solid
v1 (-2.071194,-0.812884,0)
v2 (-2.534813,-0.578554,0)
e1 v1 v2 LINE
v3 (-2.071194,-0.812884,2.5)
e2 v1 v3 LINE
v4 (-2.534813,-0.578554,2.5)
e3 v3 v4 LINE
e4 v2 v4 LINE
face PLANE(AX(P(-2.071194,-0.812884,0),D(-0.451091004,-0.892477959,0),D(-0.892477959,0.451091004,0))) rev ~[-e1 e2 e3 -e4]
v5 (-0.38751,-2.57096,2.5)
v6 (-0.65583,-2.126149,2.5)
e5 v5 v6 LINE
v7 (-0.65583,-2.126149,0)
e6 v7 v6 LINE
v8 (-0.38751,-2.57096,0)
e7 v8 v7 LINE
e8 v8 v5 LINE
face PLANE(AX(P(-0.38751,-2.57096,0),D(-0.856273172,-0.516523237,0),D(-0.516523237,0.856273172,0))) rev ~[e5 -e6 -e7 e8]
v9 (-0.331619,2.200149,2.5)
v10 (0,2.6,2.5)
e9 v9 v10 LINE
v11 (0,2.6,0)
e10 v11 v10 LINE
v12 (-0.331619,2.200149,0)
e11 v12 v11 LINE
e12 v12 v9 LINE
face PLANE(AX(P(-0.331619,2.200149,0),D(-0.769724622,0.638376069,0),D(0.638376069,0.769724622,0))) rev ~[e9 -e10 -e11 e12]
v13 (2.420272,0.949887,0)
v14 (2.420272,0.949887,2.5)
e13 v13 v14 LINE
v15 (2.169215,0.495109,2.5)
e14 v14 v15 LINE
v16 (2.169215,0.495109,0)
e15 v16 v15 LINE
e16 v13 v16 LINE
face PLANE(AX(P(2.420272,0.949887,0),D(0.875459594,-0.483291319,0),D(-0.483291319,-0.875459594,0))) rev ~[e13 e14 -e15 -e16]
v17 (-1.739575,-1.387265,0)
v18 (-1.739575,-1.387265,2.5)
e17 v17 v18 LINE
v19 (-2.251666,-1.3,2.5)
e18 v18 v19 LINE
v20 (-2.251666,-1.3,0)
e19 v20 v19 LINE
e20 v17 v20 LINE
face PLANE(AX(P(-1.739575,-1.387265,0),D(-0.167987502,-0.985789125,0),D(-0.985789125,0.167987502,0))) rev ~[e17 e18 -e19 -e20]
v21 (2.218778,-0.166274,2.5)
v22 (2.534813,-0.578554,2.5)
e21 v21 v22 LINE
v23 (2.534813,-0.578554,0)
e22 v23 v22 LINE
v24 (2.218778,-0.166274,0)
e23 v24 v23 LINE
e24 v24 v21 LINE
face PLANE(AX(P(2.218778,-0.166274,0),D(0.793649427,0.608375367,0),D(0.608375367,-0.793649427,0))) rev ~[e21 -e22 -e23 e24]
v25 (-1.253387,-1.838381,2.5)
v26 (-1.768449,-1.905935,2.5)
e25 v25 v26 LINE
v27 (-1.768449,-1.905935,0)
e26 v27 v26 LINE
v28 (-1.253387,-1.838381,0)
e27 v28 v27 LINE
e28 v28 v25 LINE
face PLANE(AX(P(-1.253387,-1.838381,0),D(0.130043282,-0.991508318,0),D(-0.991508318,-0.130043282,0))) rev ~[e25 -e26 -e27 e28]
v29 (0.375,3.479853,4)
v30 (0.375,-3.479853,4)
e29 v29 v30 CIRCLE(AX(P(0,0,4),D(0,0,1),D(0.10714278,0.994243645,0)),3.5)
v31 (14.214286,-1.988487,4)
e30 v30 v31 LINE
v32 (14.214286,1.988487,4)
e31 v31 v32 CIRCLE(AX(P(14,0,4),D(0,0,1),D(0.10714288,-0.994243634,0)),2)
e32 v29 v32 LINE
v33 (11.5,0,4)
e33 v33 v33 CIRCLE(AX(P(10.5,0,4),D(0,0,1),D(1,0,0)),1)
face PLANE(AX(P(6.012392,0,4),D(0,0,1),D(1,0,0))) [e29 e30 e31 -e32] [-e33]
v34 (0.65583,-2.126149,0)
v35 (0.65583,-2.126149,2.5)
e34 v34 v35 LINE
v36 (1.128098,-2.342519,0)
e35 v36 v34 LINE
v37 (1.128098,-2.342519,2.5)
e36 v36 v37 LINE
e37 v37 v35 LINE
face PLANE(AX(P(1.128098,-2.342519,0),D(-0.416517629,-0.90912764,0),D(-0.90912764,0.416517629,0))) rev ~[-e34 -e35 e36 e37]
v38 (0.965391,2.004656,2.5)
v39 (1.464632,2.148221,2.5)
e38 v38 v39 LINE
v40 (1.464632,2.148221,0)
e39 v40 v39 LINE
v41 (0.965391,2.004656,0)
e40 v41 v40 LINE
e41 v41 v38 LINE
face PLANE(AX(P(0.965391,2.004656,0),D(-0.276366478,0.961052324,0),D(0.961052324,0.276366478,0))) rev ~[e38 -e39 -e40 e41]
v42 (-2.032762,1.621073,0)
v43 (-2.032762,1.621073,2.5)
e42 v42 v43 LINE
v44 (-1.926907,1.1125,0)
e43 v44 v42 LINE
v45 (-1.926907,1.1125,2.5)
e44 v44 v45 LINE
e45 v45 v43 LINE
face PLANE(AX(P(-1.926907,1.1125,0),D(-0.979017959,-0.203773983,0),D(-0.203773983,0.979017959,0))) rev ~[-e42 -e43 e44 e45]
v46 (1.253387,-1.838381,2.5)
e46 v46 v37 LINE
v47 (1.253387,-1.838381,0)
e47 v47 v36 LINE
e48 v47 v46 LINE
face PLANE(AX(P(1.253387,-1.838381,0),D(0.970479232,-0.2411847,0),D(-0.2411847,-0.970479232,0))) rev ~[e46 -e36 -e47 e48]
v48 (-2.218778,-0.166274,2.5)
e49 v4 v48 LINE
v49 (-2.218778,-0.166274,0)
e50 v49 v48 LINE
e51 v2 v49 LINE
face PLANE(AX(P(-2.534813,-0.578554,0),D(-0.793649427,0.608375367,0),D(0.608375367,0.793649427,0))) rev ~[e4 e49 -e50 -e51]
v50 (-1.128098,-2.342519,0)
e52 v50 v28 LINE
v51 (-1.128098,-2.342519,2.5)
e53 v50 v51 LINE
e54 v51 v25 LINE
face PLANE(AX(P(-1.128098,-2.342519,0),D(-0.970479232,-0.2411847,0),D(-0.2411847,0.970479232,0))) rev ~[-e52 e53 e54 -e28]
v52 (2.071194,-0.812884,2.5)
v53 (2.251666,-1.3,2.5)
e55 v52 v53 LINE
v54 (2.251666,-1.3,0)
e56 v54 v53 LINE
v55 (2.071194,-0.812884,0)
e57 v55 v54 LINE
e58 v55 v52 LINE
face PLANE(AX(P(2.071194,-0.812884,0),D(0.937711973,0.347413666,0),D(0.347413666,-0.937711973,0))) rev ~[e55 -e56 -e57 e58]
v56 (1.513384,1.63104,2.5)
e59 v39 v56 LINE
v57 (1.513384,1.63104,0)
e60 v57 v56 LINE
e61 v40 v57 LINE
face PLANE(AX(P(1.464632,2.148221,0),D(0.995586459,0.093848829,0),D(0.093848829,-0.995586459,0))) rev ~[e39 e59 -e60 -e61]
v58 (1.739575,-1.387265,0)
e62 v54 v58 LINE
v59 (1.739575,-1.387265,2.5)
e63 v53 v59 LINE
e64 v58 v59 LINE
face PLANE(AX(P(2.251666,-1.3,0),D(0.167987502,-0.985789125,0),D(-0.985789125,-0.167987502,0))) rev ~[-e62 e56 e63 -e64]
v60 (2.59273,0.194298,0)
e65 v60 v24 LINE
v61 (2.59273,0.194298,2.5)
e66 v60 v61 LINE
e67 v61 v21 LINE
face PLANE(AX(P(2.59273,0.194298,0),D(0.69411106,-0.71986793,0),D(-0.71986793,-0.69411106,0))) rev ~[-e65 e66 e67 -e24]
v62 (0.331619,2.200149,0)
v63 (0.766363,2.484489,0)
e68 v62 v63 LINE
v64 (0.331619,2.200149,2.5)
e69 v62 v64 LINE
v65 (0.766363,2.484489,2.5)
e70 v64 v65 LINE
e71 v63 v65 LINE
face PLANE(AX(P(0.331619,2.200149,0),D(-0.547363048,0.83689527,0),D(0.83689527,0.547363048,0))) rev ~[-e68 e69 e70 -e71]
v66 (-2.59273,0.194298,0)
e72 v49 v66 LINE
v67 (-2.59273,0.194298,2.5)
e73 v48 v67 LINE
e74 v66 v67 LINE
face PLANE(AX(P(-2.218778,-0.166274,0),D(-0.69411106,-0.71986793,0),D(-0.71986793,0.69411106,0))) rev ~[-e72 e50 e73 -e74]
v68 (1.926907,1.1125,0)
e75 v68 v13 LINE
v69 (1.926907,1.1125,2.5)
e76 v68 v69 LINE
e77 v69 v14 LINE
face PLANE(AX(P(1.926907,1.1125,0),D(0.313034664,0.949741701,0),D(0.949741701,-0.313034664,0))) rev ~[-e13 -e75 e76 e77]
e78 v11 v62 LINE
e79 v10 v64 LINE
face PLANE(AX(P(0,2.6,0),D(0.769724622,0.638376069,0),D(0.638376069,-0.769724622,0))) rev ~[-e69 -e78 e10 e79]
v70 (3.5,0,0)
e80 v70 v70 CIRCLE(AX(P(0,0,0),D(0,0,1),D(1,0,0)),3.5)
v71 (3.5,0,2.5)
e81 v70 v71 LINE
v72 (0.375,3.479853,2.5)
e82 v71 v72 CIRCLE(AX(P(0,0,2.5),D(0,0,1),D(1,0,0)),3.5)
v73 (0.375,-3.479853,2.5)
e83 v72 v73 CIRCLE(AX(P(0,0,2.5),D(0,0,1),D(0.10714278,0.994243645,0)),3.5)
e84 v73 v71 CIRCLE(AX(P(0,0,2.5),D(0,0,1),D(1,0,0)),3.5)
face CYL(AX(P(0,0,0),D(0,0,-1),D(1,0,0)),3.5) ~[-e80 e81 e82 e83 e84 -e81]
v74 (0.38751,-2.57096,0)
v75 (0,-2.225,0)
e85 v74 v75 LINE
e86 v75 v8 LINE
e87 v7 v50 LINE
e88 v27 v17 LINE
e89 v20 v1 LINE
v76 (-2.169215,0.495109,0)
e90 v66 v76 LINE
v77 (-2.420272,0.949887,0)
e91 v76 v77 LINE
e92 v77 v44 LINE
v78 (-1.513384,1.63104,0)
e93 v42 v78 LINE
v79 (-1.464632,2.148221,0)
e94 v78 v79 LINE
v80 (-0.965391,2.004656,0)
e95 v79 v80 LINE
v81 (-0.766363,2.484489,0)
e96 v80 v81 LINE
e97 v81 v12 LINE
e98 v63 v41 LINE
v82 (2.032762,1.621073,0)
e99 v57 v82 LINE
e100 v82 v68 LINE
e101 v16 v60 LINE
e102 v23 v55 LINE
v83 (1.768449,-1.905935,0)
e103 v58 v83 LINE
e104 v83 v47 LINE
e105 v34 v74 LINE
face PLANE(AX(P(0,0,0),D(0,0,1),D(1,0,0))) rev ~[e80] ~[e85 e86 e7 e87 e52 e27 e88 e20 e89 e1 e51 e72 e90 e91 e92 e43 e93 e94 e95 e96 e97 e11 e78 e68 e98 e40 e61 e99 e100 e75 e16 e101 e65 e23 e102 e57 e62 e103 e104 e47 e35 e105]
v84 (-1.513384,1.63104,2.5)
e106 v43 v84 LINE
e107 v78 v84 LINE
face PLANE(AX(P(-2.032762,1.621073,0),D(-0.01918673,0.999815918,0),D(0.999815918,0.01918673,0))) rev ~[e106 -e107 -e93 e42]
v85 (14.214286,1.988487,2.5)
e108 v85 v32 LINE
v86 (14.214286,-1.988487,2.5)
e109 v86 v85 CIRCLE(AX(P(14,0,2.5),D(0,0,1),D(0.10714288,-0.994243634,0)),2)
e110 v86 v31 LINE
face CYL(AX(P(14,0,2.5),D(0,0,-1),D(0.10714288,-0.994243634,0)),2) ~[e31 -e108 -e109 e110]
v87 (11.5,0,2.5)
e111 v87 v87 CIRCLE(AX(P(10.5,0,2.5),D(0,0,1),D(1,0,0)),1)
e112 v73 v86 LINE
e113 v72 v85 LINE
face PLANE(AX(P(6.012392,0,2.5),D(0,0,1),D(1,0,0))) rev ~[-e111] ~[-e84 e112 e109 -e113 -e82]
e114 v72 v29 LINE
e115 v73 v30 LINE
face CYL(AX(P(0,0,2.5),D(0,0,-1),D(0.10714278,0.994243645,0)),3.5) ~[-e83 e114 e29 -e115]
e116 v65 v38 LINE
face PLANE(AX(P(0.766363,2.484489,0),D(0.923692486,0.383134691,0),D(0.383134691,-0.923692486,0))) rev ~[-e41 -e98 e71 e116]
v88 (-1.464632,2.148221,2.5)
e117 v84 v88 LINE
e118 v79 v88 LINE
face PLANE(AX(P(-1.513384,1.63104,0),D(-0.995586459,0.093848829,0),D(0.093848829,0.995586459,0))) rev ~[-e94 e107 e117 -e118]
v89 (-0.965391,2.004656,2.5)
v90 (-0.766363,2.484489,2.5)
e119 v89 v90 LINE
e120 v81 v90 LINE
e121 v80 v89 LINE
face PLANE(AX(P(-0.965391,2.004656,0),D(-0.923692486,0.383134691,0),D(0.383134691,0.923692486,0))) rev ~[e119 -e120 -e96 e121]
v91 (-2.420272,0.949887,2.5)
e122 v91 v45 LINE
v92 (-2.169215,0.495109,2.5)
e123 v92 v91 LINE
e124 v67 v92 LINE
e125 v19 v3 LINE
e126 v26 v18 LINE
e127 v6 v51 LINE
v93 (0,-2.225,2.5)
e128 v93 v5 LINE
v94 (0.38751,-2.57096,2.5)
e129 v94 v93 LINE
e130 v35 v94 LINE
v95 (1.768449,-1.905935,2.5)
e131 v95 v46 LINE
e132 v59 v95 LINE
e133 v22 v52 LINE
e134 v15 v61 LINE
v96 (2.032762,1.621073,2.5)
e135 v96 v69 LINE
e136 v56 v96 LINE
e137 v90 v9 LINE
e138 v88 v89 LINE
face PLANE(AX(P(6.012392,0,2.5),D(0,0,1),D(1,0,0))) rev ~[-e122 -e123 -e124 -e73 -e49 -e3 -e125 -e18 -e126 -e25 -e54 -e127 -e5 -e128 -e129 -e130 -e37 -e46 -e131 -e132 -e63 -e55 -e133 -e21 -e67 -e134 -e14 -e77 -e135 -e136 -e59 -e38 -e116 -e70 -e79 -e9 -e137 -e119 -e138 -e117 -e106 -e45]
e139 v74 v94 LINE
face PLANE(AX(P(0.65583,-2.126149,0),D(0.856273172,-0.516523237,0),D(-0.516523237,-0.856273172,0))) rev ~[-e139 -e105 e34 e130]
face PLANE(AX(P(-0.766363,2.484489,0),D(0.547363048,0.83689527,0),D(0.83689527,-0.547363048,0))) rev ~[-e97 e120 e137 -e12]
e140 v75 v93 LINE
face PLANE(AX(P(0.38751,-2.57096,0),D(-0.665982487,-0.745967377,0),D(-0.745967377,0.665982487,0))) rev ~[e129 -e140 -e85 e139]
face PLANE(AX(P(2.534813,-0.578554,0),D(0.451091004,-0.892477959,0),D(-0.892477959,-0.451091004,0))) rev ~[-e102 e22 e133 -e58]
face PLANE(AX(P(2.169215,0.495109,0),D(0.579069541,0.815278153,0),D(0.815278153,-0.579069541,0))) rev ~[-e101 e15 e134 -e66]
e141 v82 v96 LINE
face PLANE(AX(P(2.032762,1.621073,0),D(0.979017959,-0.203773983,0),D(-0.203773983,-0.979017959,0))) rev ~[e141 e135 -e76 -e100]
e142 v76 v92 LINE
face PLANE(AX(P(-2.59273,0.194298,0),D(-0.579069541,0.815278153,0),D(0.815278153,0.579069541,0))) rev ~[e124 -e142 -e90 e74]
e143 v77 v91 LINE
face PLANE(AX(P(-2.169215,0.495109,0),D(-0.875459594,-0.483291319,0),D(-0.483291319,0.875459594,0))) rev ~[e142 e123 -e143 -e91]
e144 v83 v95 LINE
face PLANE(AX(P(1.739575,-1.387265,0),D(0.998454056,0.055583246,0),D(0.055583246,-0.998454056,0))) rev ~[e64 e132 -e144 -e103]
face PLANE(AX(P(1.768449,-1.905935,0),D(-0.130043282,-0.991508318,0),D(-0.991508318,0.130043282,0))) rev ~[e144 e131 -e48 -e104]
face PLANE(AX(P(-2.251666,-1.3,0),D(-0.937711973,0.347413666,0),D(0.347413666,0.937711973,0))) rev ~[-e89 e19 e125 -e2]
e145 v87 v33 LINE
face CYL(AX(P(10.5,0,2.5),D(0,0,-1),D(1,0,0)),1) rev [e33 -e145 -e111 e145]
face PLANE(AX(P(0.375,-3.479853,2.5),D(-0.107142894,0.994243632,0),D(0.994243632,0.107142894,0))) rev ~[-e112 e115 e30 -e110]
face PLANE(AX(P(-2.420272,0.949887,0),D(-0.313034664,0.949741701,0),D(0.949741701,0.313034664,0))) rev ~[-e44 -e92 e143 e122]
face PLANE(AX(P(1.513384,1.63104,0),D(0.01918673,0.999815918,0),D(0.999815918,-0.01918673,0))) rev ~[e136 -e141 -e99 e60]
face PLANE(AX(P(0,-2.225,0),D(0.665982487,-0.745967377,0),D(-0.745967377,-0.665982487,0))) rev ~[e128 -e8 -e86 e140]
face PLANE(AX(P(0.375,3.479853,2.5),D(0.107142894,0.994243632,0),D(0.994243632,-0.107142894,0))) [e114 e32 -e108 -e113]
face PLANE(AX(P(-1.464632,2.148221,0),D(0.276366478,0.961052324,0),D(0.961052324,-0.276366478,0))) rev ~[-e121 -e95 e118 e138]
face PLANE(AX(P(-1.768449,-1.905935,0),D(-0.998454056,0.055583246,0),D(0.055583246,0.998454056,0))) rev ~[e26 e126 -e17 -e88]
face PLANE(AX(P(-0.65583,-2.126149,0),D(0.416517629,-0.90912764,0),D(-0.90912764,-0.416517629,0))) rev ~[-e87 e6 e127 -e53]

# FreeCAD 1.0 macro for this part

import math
import FreeCAD as App
import Part
import Sketcher

V = App.Vector
Q = App.Units.Quantity


def add_polygon(sketch, points):
    """Adds a closed chain of lines whose ends are joined by coincident constraints."""
    first, n = sketch.GeometryCount, len(points)
    for a, b in zip(points, points[1:] + points[:1]):
        sketch.addGeometry(Part.LineSegment(App.Vector(*a, 0), App.Vector(*b, 0)), False)
    for i in range(n):
        sketch.addConstraint(Sketcher.Constraint("Coincident", first + i, 2, first + (i + 1) % n, 1))

doc = App.newDocument("Part")
body = doc.addObject("PartDesign::Body", "Body")

# Sketch on XY plane
sketch1 = body.newObject("Sketcher::SketchObject", "Sketch")
sketch1.AttachmentSupport = (doc.getObject("XY_Plane"), [""])
sketch1.MapMode = "FlatFace"
sketch1.addGeometry(Part.Circle(V(0, 0, 0), V(0, 0, 1), 3.5), False)  # 0
add_polygon(sketch1, [(0, 2.6), (0.331619, 2.200149), (0.766363, 2.484489), (0.965391, 2.004656), (1.464632, 2.148221), (1.513384, 1.63104), (2.032762, 1.621073), (1.926907, 1.1125), (2.420272, 0.949887), (2.169215, 0.495109), (2.59273, 0.194298), (2.218778, -0.166274), (2.534813, -0.578554), (2.071194, -0.812884), (2.251666, -1.3), (1.739575, -1.387265), (1.768449, -1.905935), (1.253387, -1.838381), (1.128098, -2.342519), (0.65583, -2.126149), (0.38751, -2.57096), (0, -2.225), (-0.38751, -2.57096), (-0.65583, -2.126149), (-1.128098, -2.342519), (-1.253387, -1.838381), (-1.768449, -1.905935), (-1.739575, -1.387265), (-2.251666, -1.3), (-2.071194, -0.812884), (-2.534813, -0.578554), (-2.218778, -0.166274), (-2.59273, 0.194298), (-2.169215, 0.495109), (-2.420272, 0.949887), (-1.926907, 1.1125), (-2.032762, 1.621073), (-1.513384, 1.63104), (-1.464632, 2.148221), (-0.965391, 2.004656), (-0.766363, 2.484489), (-0.331619, 2.200149)])  # lines 1-42
sketch1.addConstraint(Sketcher.Constraint("Coincident", 0, 3, -1, 1))
sketch1.addConstraint(Sketcher.Constraint("PointOnObject", 21, 2, -2))
sketch1.addConstraint(Sketcher.Constraint("PointOnObject", 42, 2, -2))
sketch1.addConstraint(Sketcher.Constraint("Diameter", 0, Q("7 mm")))
sketch1.addConstraint(Sketcher.Constraint("DistanceY", 14, 2, -1, 1, Q("1.3 mm")))
sketch1.addConstraint(Sketcher.Constraint("DistanceY", 28, 2, -1, 1, Q("1.3 mm")))
sketch1.addConstraint(Sketcher.Constraint("DistanceY", -1, 1, 42, 2, Q("2.6 mm")))
sketch1.addConstraint(Sketcher.Constraint("DistanceY", 21, 2, -1, 1, Q("2.225 mm")))
sketch1.addConstraint(Sketcher.Constraint("DistanceY", -1, 1, 7, 2, Q("1.1125 mm")))
sketch1.addConstraint(Sketcher.Constraint("DistanceY", -1, 1, 35, 2, Q("1.1125 mm")))
sketch1.addConstraint(Sketcher.Constraint("DistanceX", 2, 2, 6, 2, Q("1.266399 mm")))
sketch1.addConstraint(Sketcher.Constraint("DistanceX", 9, 2, 12, 2, Q("0.365598 mm")))
sketch1.addConstraint(Sketcher.Constraint("DistanceY", 14, 2, 10, 2, Q("1.494298 mm")))
sketch1.addConstraint(Sketcher.Constraint("DistanceY", 28, 2, 32, 2, Q("1.494298 mm")))
sketch1.addConstraint(Sketcher.Constraint("DistanceX", 30, 2, 33, 2, Q("0.365598 mm")))
sketch1.addConstraint(Sketcher.Constraint("DistanceX", -1, 1, 1, 2, Q("0.331619 mm")))
sketch1.addConstraint(Sketcher.Constraint("DistanceY", -1, 1, 1, 2, Q("2.200149 mm")))
sketch1.addConstraint(Sketcher.Constraint("DistanceY", -1, 1, 2, 2, Q("2.484489 mm")))
sketch1.addConstraint(Sketcher.Constraint("DistanceX", -1, 1, 3, 2, Q("0.965391 mm")))
sketch1.addConstraint(Sketcher.Constraint("DistanceX", -1, 1, 4, 2, Q("1.464632 mm")))
sketch1.addConstraint(Sketcher.Constraint("DistanceY", -1, 1, 4, 2, Q("2.148221 mm")))
sketch1.addConstraint(Sketcher.Constraint("DistanceY", -1, 1, 5, 2, Q("1.63104 mm")))
sketch1.addConstraint(Sketcher.Constraint("DistanceX", -1, 1, 6, 2, Q("2.032762 mm")))
sketch1.addConstraint(Sketcher.Constraint("DistanceY", -1, 1, 9, 2, Q("0.495109 mm")))
sketch1.addConstraint(Sketcher.Constraint("DistanceX", -1, 1, 10, 2, Q("2.59273 mm")))
sketch1.addConstraint(Sketcher.Constraint("DistanceX", -1, 1, 16, 2, Q("1.768449 mm")))
sketch1.addConstraint(Sketcher.Constraint("DistanceY", 17, 2, -1, 1, Q("1.838381 mm")))
sketch1.addConstraint(Sketcher.Constraint("DistanceY", 18, 2, -1, 1, Q("2.342519 mm")))
sketch1.addConstraint(Sketcher.Constraint("DistanceX", -1, 1, 19, 2, Q("0.65583 mm")))
sketch1.addConstraint(Sketcher.Constraint("DistanceY", 19, 2, -1, 1, Q("2.126149 mm")))
sketch1.addConstraint(Sketcher.Constraint("DistanceX", -1, 1, 20, 2, Q("0.38751 mm")))
sketch1.addConstraint(Sketcher.Constraint("DistanceY", 20, 2, -1, 1, Q("2.57096 mm")))
sketch1.addConstraint(Sketcher.Constraint("DistanceX", 22, 2, -1, 1, Q("0.38751 mm")))
sketch1.addConstraint(Sketcher.Constraint("DistanceY", 22, 2, -1, 1, Q("2.57096 mm")))
sketch1.addConstraint(Sketcher.Constraint("DistanceX", 23, 2, -1, 1, Q("0.65583 mm")))
sketch1.addConstraint(Sketcher.Constraint("DistanceY", 23, 2, -1, 1, Q("2.126149 mm")))
sketch1.addConstraint(Sketcher.Constraint("DistanceY", 24, 2, -1, 1, Q("2.342519 mm")))
sketch1.addConstraint(Sketcher.Constraint("DistanceY", 25, 2, -1, 1, Q("1.838381 mm")))
sketch1.addConstraint(Sketcher.Constraint("DistanceX", 26, 2, -1, 1, Q("1.768449 mm")))
sketch1.addConstraint(Sketcher.Constraint("DistanceX", 32, 2, -1, 1, Q("2.59273 mm")))
sketch1.addConstraint(Sketcher.Constraint("DistanceY", -1, 1, 33, 2, Q("0.495109 mm")))
sketch1.addConstraint(Sketcher.Constraint("DistanceX", 36, 2, -1, 1, Q("2.032762 mm")))
sketch1.addConstraint(Sketcher.Constraint("DistanceY", -1, 1, 37, 2, Q("1.63104 mm")))
sketch1.addConstraint(Sketcher.Constraint("DistanceX", 38, 2, -1, 1, Q("1.464632 mm")))
sketch1.addConstraint(Sketcher.Constraint("DistanceY", -1, 1, 38, 2, Q("2.148221 mm")))
sketch1.addConstraint(Sketcher.Constraint("DistanceX", 39, 2, -1, 1, Q("0.965391 mm")))
sketch1.addConstraint(Sketcher.Constraint("DistanceY", -1, 1, 40, 2, Q("2.484489 mm")))
sketch1.addConstraint(Sketcher.Constraint("DistanceX", 41, 2, -1, 1, Q("0.331619 mm")))
sketch1.addConstraint(Sketcher.Constraint("DistanceY", -1, 1, 41, 2, Q("2.200149 mm")))
sketch1.addConstraint(Sketcher.Constraint("DistanceX", 2, 2, 5, 2, Q("0.747021 mm")))
sketch1.addConstraint(Sketcher.Constraint("DistanceX", 6, 2, 8, 2, Q("0.38751 mm")))
sketch1.addConstraint(Sketcher.Constraint("DistanceY", 8, 2, 3, 2, Q("1.054769 mm")))
sketch1.addConstraint(Sketcher.Constraint("DistanceX", 5, 2, 9, 2, Q("0.655831 mm")))
sketch1.addConstraint(Sketcher.Constraint("DistanceY", 10, 2, 8, 2, Q("0.755589 mm")))
sketch1.addConstraint(Sketcher.Constraint("DistanceY", 11, 2, 8, 2, Q("1.116161 mm")))
sketch1.addConstraint(Sketcher.Constraint("DistanceX", 7, 2, 11, 2, Q("0.291871 mm")))
sketch1.addConstraint(Sketcher.Constraint("DistanceY", 12, 2, 11, 2, Q("0.41228 mm")))
sketch1.addConstraint(Sketcher.Constraint("DistanceX", 13, 2, 12, 2, Q("0.463619 mm")))
sketch1.addConstraint(Sketcher.Constraint("DistanceY", 13, 2, 12, 2, Q("0.23433 mm")))
sketch1.addConstraint(Sketcher.Constraint("DistanceX", 13, 2, 14, 2, Q("0.180472 mm")))
sketch1.addConstraint(Sketcher.Constraint("DistanceX", 11, 2, 14, 2, Q("0.032888 mm")))
sketch1.addConstraint(Sketcher.Constraint("DistanceX", 15, 2, 14, 2, Q("0.512091 mm")))
sketch1.addConstraint(Sketcher.Constraint("DistanceY", 15, 2, 13, 2, Q("0.574381 mm")))
sketch1.addConstraint(Sketcher.Constraint("DistanceY", 16, 2, 15, 2, Q("0.51867 mm")))
sketch1.addConstraint(Sketcher.Constraint("DistanceX", 17, 2, 16, 2, Q("0.515062 mm")))
sketch1.addConstraint(Sketcher.Constraint("DistanceX", 18, 2, 17, 2, Q("0.125289 mm")))
sketch1.addConstraint(Sketcher.Constraint("DistanceX", 24, 2, 22, 2, Q("0.740588 mm")))
sketch1.addConstraint(Sketcher.Constraint("DistanceX", 25, 2, 24, 2, Q("0.125289 mm")))
sketch1.addConstraint(Sketcher.Constraint("DistanceY", 26, 2, 27, 2, Q("0.51867 mm")))
sketch1.addConstraint(Sketcher.Constraint("DistanceX", 27, 2, 25, 2, Q("0.486188 mm")))
sketch1.addConstraint(Sketcher.Constraint("DistanceX", 28, 2, 27, 2, Q("0.512091 mm")))
sketch1.addConstraint(Sketcher.Constraint("DistanceX", 28, 2, 29, 2, Q("0.180472 mm")))
sketch1.addConstraint(Sketcher.Constraint("DistanceY", 27, 2, 29, 2, Q("0.574381 mm")))
sketch1.addConstraint(Sketcher.Constraint("DistanceX", 30, 2, 29, 2, Q("0.463619 mm")))
sketch1.addConstraint(Sketcher.Constraint("DistanceY", 29, 2, 30, 2, Q("0.23433 mm")))
sketch1.addConstraint(Sketcher.Constraint("DistanceY", 30, 2, 31, 2, Q("0.41228 mm")))
sketch1.addConstraint(Sketcher.Constraint("DistanceX", 28, 2, 31, 2, Q("0.032888 mm")))
sketch1.addConstraint(Sketcher.Constraint("DistanceY", 30, 2, 32, 2, Q("0.772852 mm")))
sketch1.addConstraint(Sketcher.Constraint("DistanceY", 32, 2, 34, 2, Q("0.755589 mm")))
sketch1.addConstraint(Sketcher.Constraint("DistanceX", 30, 2, 34, 2, Q("0.114541 mm")))
sketch1.addConstraint(Sketcher.Constraint("DistanceX", 31, 2, 35, 2, Q("0.291871 mm")))
sketch1.addConstraint(Sketcher.Constraint("DistanceX", 34, 2, 37, 2, Q("0.906888 mm")))
sketch1.addConstraint(Sketcher.Constraint("DistanceX", 38, 2, 40, 2, Q("0.698269 mm")))
sketch1.addConstraint(Sketcher.Constraint("Distance", 6, Q("0.519474 mm")))
sketch1.addConstraint(Sketcher.Constraint("Distance", 36, Q("0.519473 mm")))
sketch1.addConstraint(Sketcher.Constraint("Distance", 39, Q("0.519473 mm")))
pad1 = body.newObject("PartDesign::Pad", "Pad")
pad1.Profile = sketch1
pad1.Length = 2.5

# Sketch on XY plane
sketch2 = body.newObject("Sketcher::SketchObject", "Sketch001")
sketch2.AttachmentSupport = (doc.getObject("XY_Plane"), [""])
sketch2.MapMode = "FlatFace"
sketch2.AttachmentOffset = App.Placement(V(0, 0, 2.5), App.Rotation())
sketch2.addGeometry(Part.ArcOfCircle(Part.Circle(V(0, 0, 0), V(0, 0, 1), 3.5), math.radians(83.849365), math.radians(276.150635)), False)
sketch2.addGeometry(Part.LineSegment(V(0.375, -3.479853, 0), V(14.214286, -1.988487, 0)), False)
sketch2.addGeometry(Part.ArcOfCircle(Part.Circle(V(14, 0, 0), V(0, 0, 1), 2), math.radians(-83.849359), math.radians(83.849359)), False)
sketch2.addGeometry(Part.LineSegment(V(14.214286, 1.988487, 0), V(0.375, 3.479853, 0)), False)
sketch2.addGeometry(Part.Circle(V(10.5, 0, 0), V(0, 0, 1), 1), False)
sketch2.addConstraint(Sketcher.Constraint("Tangent", 0, 2, 1, 1))
sketch2.addConstraint(Sketcher.Constraint("Tangent", 1, 2, 2, 1))
sketch2.addConstraint(Sketcher.Constraint("Tangent", 2, 2, 3, 1))
sketch2.addConstraint(Sketcher.Constraint("Tangent", 3, 2, 0, 1))
sketch2.addConstraint(Sketcher.Constraint("Coincident", 0, 3, -1, 1))
sketch2.addConstraint(Sketcher.Constraint("PointOnObject", 2, 3, -1))
sketch2.addConstraint(Sketcher.Constraint("PointOnObject", 4, 3, -1))
sketch2.addConstraint(Sketcher.Constraint("Diameter", 4, Q("2 mm")))
sketch2.addConstraint(Sketcher.Constraint("Radius", 2, Q("2 mm")))
sketch2.addConstraint(Sketcher.Constraint("Radius", 0, Q("3.5 mm")))
sketch2.addConstraint(Sketcher.Constraint("DistanceX", -1, 1, 2, 3, Q("14 mm")))
sketch2.addConstraint(Sketcher.Constraint("DistanceX", -1, 1, 4, 3, Q("10.5 mm")))
pad2 = body.newObject("PartDesign::Pad", "Pad001")
pad2.Profile = sketch2
pad2.Length = 1.5

doc.recompute()
